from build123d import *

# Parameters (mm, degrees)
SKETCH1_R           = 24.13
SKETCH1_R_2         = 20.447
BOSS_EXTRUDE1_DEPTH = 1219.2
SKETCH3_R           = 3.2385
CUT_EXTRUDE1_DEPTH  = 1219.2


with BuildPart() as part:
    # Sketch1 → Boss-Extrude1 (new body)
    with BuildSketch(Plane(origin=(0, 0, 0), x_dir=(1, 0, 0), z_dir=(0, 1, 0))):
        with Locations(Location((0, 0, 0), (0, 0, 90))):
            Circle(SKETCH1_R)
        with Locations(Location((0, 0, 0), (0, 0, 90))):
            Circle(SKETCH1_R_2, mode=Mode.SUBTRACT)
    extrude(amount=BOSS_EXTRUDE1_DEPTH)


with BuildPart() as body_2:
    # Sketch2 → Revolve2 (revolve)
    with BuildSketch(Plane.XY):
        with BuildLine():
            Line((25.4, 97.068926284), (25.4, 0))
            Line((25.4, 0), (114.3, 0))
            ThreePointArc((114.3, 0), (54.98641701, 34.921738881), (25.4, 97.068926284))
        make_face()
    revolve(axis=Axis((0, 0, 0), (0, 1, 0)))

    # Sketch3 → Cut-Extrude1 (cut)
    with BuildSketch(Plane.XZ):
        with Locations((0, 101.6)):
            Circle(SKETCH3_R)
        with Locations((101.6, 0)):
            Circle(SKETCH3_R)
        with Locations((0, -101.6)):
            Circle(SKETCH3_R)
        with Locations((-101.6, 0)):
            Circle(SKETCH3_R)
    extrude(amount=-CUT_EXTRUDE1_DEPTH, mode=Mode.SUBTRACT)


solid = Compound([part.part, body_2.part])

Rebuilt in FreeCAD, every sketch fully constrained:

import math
import FreeCAD as App
import Part
import Sketcher
from FreeCAD import Vector
Q = App.Units.Quantity

doc = App.newDocument("Part")
body = doc.addObject("PartDesign::Body", "Body")

# Sketch on XZ plane
sketch1 = doc.addObject("Sketcher::SketchObject", "Sketch")
body.addObject(sketch1)
sketch1.AttachmentSupport = (doc.XZ_Plane, [""])
sketch1.MapMode = "FlatFace"
sketch1.addGeometry([
    Part.Circle(Vector(0, 0, 0), Vector(0, 0, 1), 24),
    Part.Circle(Vector(0, 0, 0), Vector(0, 0, 1), 20),
], False)
sketch1.addConstraint([
    Sketcher.Constraint("Coincident", 0, 3, -1, 1),
    Sketcher.Constraint("Coincident", 1, 3, -1, 1),
    Sketcher.Constraint("Diameter", 0, Q("1.9 in")),
    Sketcher.Constraint("Diameter", 1, Q("1.61 in")),
])
pad1 = doc.addObject("PartDesign::Pad", "Pad")
body.addObject(pad1)
pad1.Profile = sketch1
pad1.Length = Q("48 in")
pad1.Reversed = True
body2 = doc.addObject("PartDesign::Body", "Body001")

# Sketch on XY plane
sketch2 = doc.addObject("Sketcher::SketchObject", "Sketch001")
body2.addObject(sketch2)
sketch2.AttachmentSupport = (doc.getObject("XY_Plane001"), [""])
sketch2.MapMode = "FlatFace"
sketch2.addGeometry([
    Part.LineSegment(Vector(25, 97, 0), Vector(25, 0, 0)),
    Part.LineSegment(Vector(25, 0, 0), Vector(114, 0, 0)),
    Part.ArcOfCircle(Part.Circle(Vector(142, 114, 0), Vector(0, 0, 1), 118), math.radians(-172), math.radians(-103)),
], False)
sketch2.addConstraint([
    Sketcher.Constraint("Coincident", 0, 2, 1, 1),
    Sketcher.Constraint("Coincident", 1, 2, 2, 2),
    Sketcher.Constraint("Coincident", 2, 1, 0, 1),
    Sketcher.Constraint("Vertical", 0),
    Sketcher.Constraint("Horizontal", 1),
    Sketcher.Constraint("PointOnObject", 0, 2, -1),
    Sketcher.Constraint("DistanceX", 1, 1, 1, 2, Q("3.5 in")),
    Sketcher.Constraint("DistanceX", -1, 1, 0, 2, Q("1 in")),
    Sketcher.Constraint("DistanceY", -1, 1, 2, 3, Q("4.5 in")),
    Sketcher.Constraint("Radius", 2, Q("117.528662 mm")),
])
revolution = doc.addObject("PartDesign::Revolution", "Revolution")
body2.addObject(revolution)
revolution.Profile = sketch2
revolution.ReferenceAxis = (sketch2, ["V_Axis"])
revolution.Angle = 360

# Sketch on XZ plane
sketch3 = doc.addObject("Sketcher::SketchObject", "Sketch002")
body2.addObject(sketch3)
sketch3.AttachmentSupport = (doc.getObject("XZ_Plane001"), [""])
sketch3.MapMode = "FlatFace"
sketch3.addGeometry([
    Part.Circle(Vector(0, 101.6, 0), Vector(0, 0, 1), 3.2),
    Part.Circle(Vector(101.6, 0, 0), Vector(0, 0, 1), 3.2),
    Part.Circle(Vector(0, -101.6, 0), Vector(0, 0, 1), 3.2),
    Part.Circle(Vector(-101.6, 0, 0), Vector(0, 0, 1), 3.2),
], False)
sketch3.addConstraint([
    Sketcher.Constraint("Equal", 0, 1),
    Sketcher.Constraint("Equal", 1, 2),
    Sketcher.Constraint("Equal", 2, 3),
    Sketcher.Constraint("Symmetric", 0, 3, 2, 3, -1, 1),
    Sketcher.Constraint("Symmetric", 1, 3, 3, 3, -1, 1),
    Sketcher.Constraint("PointOnObject", 0, 3, -2),
    Sketcher.Constraint("PointOnObject", 1, 3, -1),
    Sketcher.Constraint("Diameter", 0, Q("0.255 in")),
    Sketcher.Constraint("DistanceY", -1, 1, 0, 3, Q("4 in")),
    Sketcher.Constraint("DistanceX", -1, 1, 1, 3, Q("4 in")),
])
pocket1 = doc.addObject("PartDesign::Pocket", "Pocket")
body2.addObject(pocket1)
pocket1.Profile = sketch3
pocket1.Length = Q("48 in")

doc.recompute()
